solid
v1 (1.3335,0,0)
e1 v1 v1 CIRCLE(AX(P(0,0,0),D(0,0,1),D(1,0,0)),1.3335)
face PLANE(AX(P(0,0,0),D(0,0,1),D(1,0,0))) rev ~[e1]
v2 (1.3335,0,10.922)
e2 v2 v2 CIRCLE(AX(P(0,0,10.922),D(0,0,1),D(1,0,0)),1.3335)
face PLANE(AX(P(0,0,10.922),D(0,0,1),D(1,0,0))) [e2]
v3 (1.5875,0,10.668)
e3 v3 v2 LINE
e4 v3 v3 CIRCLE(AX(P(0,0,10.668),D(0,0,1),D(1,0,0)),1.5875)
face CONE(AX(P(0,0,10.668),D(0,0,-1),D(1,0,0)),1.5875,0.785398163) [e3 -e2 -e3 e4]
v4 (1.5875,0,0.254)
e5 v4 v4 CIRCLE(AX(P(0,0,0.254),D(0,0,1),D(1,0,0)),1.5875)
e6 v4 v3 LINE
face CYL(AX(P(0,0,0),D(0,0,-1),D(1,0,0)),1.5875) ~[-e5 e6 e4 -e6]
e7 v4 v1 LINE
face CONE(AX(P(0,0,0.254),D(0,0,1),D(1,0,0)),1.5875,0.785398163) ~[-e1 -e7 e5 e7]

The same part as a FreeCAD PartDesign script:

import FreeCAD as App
import Part
import Sketcher

V = App.Vector
Q = App.Units.Quantity


def edges_at(feature, points):
    """Names of the edges that pass closest to the given points."""
    edges = feature.Shape.Edges
    near = lambda p: min(range(len(edges)), key=lambda i: edges[i].distToShape(Part.Vertex(*p))[0])
    return sorted({f"Edge{near(p) + 1}" for p in points})

doc = App.newDocument("Part")
params = doc.addObject("Spreadsheet::Sheet", "Params")
for row, (alias, value) in enumerate([
    ("sketch1_diameter", "0.125 in"),
    ("pad1_length", "0.43 in"),
    ("chamfer_size", "0.01 in"),
    ("chamfer_size2", "0.01 in"),
], start=1):
    params.set(f"A{row}", alias)
    params.set(f"B{row}", "=" + value)
    params.setAlias(f"B{row}", alias)

body = doc.addObject("PartDesign::Body", "Body")

# Sketch on XY plane
sketch1 = body.newObject("Sketcher::SketchObject", "Sketch")
sketch1.AttachmentSupport = (doc.getObject("XY_Plane"), [""])
sketch1.MapMode = "FlatFace"
sketch1.addGeometry(Part.Circle(V(0, 0, 0), V(0, 0, 1), 1.6), False)
sketch1.addConstraint([
    Sketcher.Constraint("Coincident", 0, 3, -1, 1),
    Sketcher.Constraint("Diameter", 0, Q("0.125 in")),
])
sketch1.setExpression("Constraints[1]", "Params.sketch1_diameter")
pad1 = body.newObject("PartDesign::Pad", "Pad")
pad1.Profile = sketch1
pad1.setExpression("Length", "Params.pad1_length")
doc.recompute()

chamfer = body.newObject("PartDesign::Chamfer", "Chamfer")
chamfer.Base = (pad1, edges_at(pad1, [(-1.587, 0, 10.922), (-1.587, 0, 0)]))
chamfer.ChamferType = "Two distances"
chamfer.setExpression("Size", "Params.chamfer_size")
chamfer.setExpression("Size2", "Params.chamfer_size2")

doc.recompute()
